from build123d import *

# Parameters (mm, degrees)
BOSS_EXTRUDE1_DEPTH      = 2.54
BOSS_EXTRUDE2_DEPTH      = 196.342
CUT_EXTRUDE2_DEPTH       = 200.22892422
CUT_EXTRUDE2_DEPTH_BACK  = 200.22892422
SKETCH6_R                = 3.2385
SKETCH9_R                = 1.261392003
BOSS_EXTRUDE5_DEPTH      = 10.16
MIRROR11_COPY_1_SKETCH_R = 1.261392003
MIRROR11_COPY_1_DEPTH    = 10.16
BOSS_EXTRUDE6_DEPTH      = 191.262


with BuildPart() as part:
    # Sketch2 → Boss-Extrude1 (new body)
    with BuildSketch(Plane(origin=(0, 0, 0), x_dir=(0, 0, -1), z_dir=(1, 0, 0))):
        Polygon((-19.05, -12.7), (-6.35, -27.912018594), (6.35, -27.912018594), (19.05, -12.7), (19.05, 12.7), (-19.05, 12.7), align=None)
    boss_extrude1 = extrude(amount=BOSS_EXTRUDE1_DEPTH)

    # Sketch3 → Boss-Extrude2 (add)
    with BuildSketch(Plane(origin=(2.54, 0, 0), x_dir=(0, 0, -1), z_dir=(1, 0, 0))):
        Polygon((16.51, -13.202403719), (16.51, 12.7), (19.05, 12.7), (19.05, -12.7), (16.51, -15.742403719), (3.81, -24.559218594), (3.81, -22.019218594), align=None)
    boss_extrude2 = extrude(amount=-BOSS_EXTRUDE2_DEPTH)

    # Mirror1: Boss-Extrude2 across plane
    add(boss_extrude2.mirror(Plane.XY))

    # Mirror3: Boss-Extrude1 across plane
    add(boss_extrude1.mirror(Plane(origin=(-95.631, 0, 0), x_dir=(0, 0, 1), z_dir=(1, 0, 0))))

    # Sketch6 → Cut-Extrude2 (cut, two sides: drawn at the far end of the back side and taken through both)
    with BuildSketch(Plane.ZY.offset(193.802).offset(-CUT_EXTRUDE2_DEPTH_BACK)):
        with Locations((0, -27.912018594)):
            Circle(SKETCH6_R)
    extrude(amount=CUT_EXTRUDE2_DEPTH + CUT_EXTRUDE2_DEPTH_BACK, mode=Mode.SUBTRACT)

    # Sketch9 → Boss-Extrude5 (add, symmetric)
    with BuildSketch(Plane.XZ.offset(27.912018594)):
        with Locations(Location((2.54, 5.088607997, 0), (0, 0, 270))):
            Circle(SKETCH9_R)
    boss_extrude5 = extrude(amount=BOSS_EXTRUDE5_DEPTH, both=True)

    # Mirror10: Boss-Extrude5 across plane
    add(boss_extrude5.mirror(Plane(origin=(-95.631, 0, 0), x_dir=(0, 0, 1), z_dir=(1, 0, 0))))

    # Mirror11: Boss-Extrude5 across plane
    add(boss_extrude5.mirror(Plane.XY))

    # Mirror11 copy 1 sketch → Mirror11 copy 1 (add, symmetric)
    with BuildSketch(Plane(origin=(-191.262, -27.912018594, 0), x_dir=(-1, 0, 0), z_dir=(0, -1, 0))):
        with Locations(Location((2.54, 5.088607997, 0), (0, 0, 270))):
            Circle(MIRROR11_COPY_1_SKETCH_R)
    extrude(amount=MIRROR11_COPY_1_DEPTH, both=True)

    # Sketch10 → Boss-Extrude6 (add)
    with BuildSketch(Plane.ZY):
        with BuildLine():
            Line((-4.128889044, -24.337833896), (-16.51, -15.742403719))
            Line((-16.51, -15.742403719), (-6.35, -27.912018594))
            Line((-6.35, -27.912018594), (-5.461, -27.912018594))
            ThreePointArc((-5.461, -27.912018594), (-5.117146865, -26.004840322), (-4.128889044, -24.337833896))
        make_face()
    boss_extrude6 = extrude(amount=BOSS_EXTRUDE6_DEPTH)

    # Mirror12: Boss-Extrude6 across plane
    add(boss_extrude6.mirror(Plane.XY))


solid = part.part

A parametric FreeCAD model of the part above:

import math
import FreeCAD as App
import Part
import Sketcher

V = App.Vector
Q = App.Units.Quantity

doc = App.newDocument("Part")
body = doc.addObject("PartDesign::Body", "Body")

# Sketch on YZ plane
sketch1 = body.newObject("Sketcher::SketchObject", "Sketch")
sketch1.AttachmentSupport = (doc.getObject("YZ_Plane"), [""])
sketch1.MapMode = "FlatFace"
sketch1.addGeometry([
    Part.LineSegment(V(-12.7, 19.05, 0), V(-27.912019, 6.35, 0)),  # 0
    Part.LineSegment(V(-27.912019, 6.35, 0), V(-27.912019, -6.35, 0)),  # 1
    Part.LineSegment(V(-27.912019, -6.35, 0), V(-12.7, -19.05, 0)),  # 2
    Part.LineSegment(V(-12.7, -19.05, 0), V(12.7, -19.05, 0)),  # 3
    Part.LineSegment(V(12.7, -19.05, 0), V(12.7, 19.05, 0)),  # 4
    Part.LineSegment(V(12.7, 19.05, 0), V(-12.7, 19.05, 0)),  # 5
], False)
sketch1.addConstraint([
    Sketcher.Constraint("Coincident", 0, 2, 1, 1),
    Sketcher.Constraint("Coincident", 1, 2, 2, 1),
    Sketcher.Constraint("Coincident", 2, 2, 3, 1),
    Sketcher.Constraint("Coincident", 3, 2, 4, 1),
    Sketcher.Constraint("Coincident", 4, 2, 5, 1),
    Sketcher.Constraint("Coincident", 5, 2, 0, 1),
    Sketcher.Constraint("Vertical", 1),
    Sketcher.Constraint("Horizontal", 3),
    Sketcher.Constraint("Vertical", 4),
    Sketcher.Constraint("Horizontal", 5),
    Sketcher.Constraint("Symmetric", 2, 2, 4, 2, -1, 1),
    Sketcher.Constraint("Vertical", 2, 2, 5, 2),
    Sketcher.Constraint("Equal", 0, 2),
    Sketcher.Constraint("DistanceX", 3, 1, 3, 2, Q("1 in")),
    Sketcher.Constraint("DistanceY", 1, 2, 1, 1, Q("0.5 in")),
    Sketcher.Constraint("DistanceY", 4, 1, 4, 2, Q("1.5 in")),
    Sketcher.Constraint("DistanceX", 0, 2, -1, 1, 27.912019),
])
pad1 = body.newObject("PartDesign::Pad", "Pad")
pad1.Profile = sketch1
pad1.Length = Q("0.1 in")

# Sketch on YZ plane
sketch2 = body.newObject("Sketcher::SketchObject", "Sketch001")
sketch2.AttachmentSupport = (doc.getObject("YZ_Plane"), [""])
sketch2.MapMode = "FlatFace"
sketch2.AttachmentOffset = App.Placement(V(0, 0, 0.1 * 25.4), App.Rotation())
sketch2.addGeometry([
    Part.LineSegment(V(12.7, -16.51, 0), V(-13.202404, -16.51, 0)),  # 0
    Part.LineSegment(V(-13.202404, -16.51, 0), V(-22.019219, -3.81, 0)),  # 1
    Part.LineSegment(V(-22.019219, -3.81, 0), V(-24.559219, -3.81, 0)),  # 2
    Part.LineSegment(V(-24.559219, -3.81, 0), V(-15.742404, -16.51, 0)),  # 3
    Part.LineSegment(V(-15.742404, -16.51, 0), V(-12.7, -19.05, 0)),  # 4
    Part.LineSegment(V(-12.7, -19.05, 0), V(12.7, -19.05, 0)),  # 5
    Part.LineSegment(V(12.7, -19.05, 0), V(12.7, -16.51, 0)),  # 6
], False)
sketch2.addConstraint([
    Sketcher.Constraint("Coincident", 0, 2, 1, 1),
    Sketcher.Constraint("Coincident", 1, 2, 2, 1),
    Sketcher.Constraint("Coincident", 2, 2, 3, 1),
    Sketcher.Constraint("Coincident", 3, 2, 4, 1),
    Sketcher.Constraint("Coincident", 4, 2, 5, 1),
    Sketcher.Constraint("Coincident", 5, 2, 6, 1),
    Sketcher.Constraint("Coincident", 6, 2, 0, 1),
    Sketcher.Constraint("Horizontal", 0),
    Sketcher.Constraint("Horizontal", 2),
    Sketcher.Constraint("Horizontal", 5),
    Sketcher.Constraint("Vertical", 6),
    Sketcher.Constraint("Parallel", 1, 3),
    Sketcher.Constraint("Horizontal", 0, 2, 3, 2),
    Sketcher.Constraint("Equal", 2, 6),
    Sketcher.Constraint("DistanceX", 5, 1, 5, 2, Q("1 in")),
    Sketcher.Constraint("DistanceX", 2, 2, 2, 1, Q("0.1 in")),
    Sketcher.Constraint("DistanceX", 4, 2, -1, 1, Q("0.5 in")),
    Sketcher.Constraint("DistanceY", 0, 2, 1, 2, Q("0.5 in")),
    Sketcher.Constraint("DistanceY", 0, 2, -1, 1, Q("0.65 in")),
    Sketcher.Constraint("Distance", 4, 3.963309),
    Sketcher.Constraint("DistanceX", 1, 2, -1, 1, 22.019219),
])
pad2 = body.newObject("PartDesign::Pad", "Pad001")
pad2.Profile = sketch2
pad2.Length = Q("7.73 in")
pad2.Reversed = True
doc.recompute()

mirrored = body.newObject("PartDesign::Mirrored", "Mirrored")
mirrored.Originals = [pad2]
mirrored.MirrorPlane = (doc.getObject("XY_Plane"), [""])
body.Tip = mirrored
doc.recompute()

datumplane = body.newObject("PartDesign::Plane", "DatumPlane")
datumplane.AttachmentSupport = (doc.getObject("YZ_Plane"), [""])
datumplane.MapMode = "FlatFace"
datumplane.AttachmentOffset = App.Placement(V(0, 0, -3.765 * 25.4), App.Rotation())
mirrored2 = body.newObject("PartDesign::Mirrored", "Mirrored001")
mirrored2.Originals = [pad1]
mirrored2.MirrorPlane = (datumplane, [""])
body.Tip = mirrored2

# Sketch on YZ plane
sketch3 = body.newObject("Sketcher::SketchObject", "Sketch002")
sketch3.AttachmentSupport = (doc.getObject("YZ_Plane"), [""])
sketch3.MapMode = "FlatFace"
sketch3.AttachmentOffset = App.Placement(V(0, 0, -7.63 * 25.4), App.Rotation())
sketch3.addGeometry(Part.Circle(V(-27.912019, 0, 0), V(0, 0, 1), 3.2385), False)
sketch3.addConstraint([
    Sketcher.Constraint("PointOnObject", 0, 3, -1),
    Sketcher.Constraint("Diameter", 0, Q("0.255 in")),
    Sketcher.Constraint("DistanceX", 0, 3, -1, 1, 27.912019),
])
pocket1 = body.newObject("PartDesign::Pocket", "Pocket")
pocket1.Profile = sketch3
pocket1.Type = "ThroughAll"
pocket1.Midplane = True

# Sketch on XZ plane
sketch4 = body.newObject("Sketcher::SketchObject", "Sketch003")
sketch4.AttachmentSupport = (doc.getObject("XZ_Plane"), [""])
sketch4.MapMode = "FlatFace"
sketch4.AttachmentOffset = App.Placement(V(0, 0, 27.912019), App.Rotation())
sketch4.addGeometry(Part.Circle(V(2.54, 5.088608, 0), V(0, 0, 1), 1.261392), False)
sketch4.addConstraint([
    Sketcher.Constraint("DistanceX", -1, 1, 0, 3, Q("0.1 in")),
    Sketcher.Constraint("Diameter", 0, 2.522784),
    Sketcher.Constraint("DistanceY", -1, 1, 0, 3, 5.088608),
])
pad3 = body.newObject("PartDesign::Pad", "Pad002")
pad3.Profile = sketch4
pad3.Length = Q("0.8 in")
pad3.Midplane = True
doc.recompute()

datumplane2 = body.newObject("PartDesign::Plane", "DatumPlane001")
datumplane2.AttachmentSupport = (doc.getObject("YZ_Plane"), [""])
datumplane2.MapMode = "FlatFace"
datumplane2.AttachmentOffset = App.Placement(V(0, 0, -3.765 * 25.4), App.Rotation())
mirrored3 = body.newObject("PartDesign::Mirrored", "Mirrored002")
mirrored3.Originals = [pad3]
mirrored3.MirrorPlane = (datumplane2, [""])
body.Tip = mirrored3
doc.recompute()

mirrored4 = body.newObject("PartDesign::Mirrored", "Mirrored003")
mirrored4.Originals = [pad3]
mirrored4.MirrorPlane = (doc.getObject("XY_Plane"), [""])
body.Tip = mirrored4

# Sketch on XZ plane
sketch5 = body.newObject("Sketcher::SketchObject", "Sketch004")
sketch5.AttachmentSupport = (doc.getObject("XZ_Plane"), [""])
sketch5.MapMode = "FlatFace"
sketch5.AttachmentOffset = App.Placement(V(0, 0, 27.912019), App.Rotation())
sketch5.addGeometry(Part.Circle(V(-193.802, -5.088608, 0), V(0, 0, 1), 1.261392), False)
sketch5.addConstraint([
    Sketcher.Constraint("DistanceX", 0, 3, -1, 1, Q("7.63 in")),
    Sketcher.Constraint("Diameter", 0, 2.522784),
    Sketcher.Constraint("DistanceY", 0, 3, -1, 1, 5.088608),
])
pad4 = body.newObject("PartDesign::Pad", "Pad003")
pad4.Profile = sketch5
pad4.Length = Q("0.8 in")
pad4.Midplane = True

# Sketch on YZ plane
sketch6 = body.newObject("Sketcher::SketchObject", "Sketch005")
sketch6.AttachmentSupport = (doc.getObject("YZ_Plane"), [""])
sketch6.MapMode = "FlatFace"
sketch6.addGeometry([
    Part.LineSegment(V(-24.337834, -4.128889, 0), V(-15.742404, -16.51, 0)),
    Part.LineSegment(V(-15.742404, -16.51, 0), V(-27.912019, -6.35, 0)),
    Part.LineSegment(V(-27.912019, -6.35, 0), V(-27.912019, -5.461, 0)),
    Part.ArcOfCircle(Part.Circle(V(-27.912019, 0, 0), V(0, 0, 1), 5.461), math.radians(-90), math.radians(-49.118804)),
], False)
sketch6.addConstraint([
    Sketcher.Constraint("Coincident", 0, 2, 1, 1),
    Sketcher.Constraint("Coincident", 1, 2, 2, 1),
    Sketcher.Constraint("Coincident", 2, 2, 3, 1),
    Sketcher.Constraint("Coincident", 3, 2, 0, 1),
    Sketcher.Constraint("Vertical", 2),
    Sketcher.Constraint("PointOnObject", 3, 3, -1),
    Sketcher.Constraint("Vertical", 3, 3, 1, 2),
    Sketcher.Constraint("Radius", 3, Q("0.215 in")),
    Sketcher.Constraint("DistanceY", 0, 2, 1, 2, Q("0.4 in")),
    Sketcher.Constraint("DistanceY", 2, 1, 2, 2, Q("0.035 in")),
    Sketcher.Constraint("Distance", 0, 15.07227),
    Sketcher.Constraint("DistanceX", 3, 3, -1, 1, 27.912019),
    Sketcher.Constraint("DistanceY", 3, 2, -1, 1, 4.128889),
])
pad5 = body.newObject("PartDesign::Pad", "Pad004")
pad5.Profile = sketch6
pad5.Length = Q("7.53 in")
pad5.Reversed = True
doc.recompute()

mirrored5 = body.newObject("PartDesign::Mirrored", "Mirrored004")
mirrored5.Originals = [pad5]
mirrored5.MirrorPlane = (doc.getObject("XY_Plane"), [""])
body.Tip = mirrored5

doc.recompute()
